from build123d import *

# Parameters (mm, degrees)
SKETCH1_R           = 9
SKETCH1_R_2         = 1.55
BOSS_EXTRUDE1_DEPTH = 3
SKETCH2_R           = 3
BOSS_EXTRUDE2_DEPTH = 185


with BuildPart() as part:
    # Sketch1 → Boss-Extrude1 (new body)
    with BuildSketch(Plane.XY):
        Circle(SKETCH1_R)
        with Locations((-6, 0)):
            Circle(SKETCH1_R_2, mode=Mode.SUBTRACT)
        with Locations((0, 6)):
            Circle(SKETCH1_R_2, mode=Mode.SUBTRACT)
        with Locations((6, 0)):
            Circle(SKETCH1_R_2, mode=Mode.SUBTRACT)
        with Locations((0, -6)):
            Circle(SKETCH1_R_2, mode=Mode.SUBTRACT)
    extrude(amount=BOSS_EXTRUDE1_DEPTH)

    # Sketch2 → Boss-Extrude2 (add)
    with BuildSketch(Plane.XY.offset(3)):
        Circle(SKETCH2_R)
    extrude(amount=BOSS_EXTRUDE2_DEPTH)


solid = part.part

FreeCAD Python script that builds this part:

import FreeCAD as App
import Part
import Sketcher
from FreeCAD import Vector

doc = App.newDocument("Part")
body = doc.addObject("PartDesign::Body", "Body")

# Sketch on XY plane
sketch1 = body.newObject("Sketcher::SketchObject", "Sketch")
sketch1.AttachmentSupport = (doc.getObject("XY_Plane"), [""])
sketch1.MapMode = "FlatFace"
sketch1.addGeometry([
    Part.Circle(Vector(0, 0, 0), Vector(0, 0, 1), 9),  # 0
    Part.Circle(Vector(0, -6, 0), Vector(0, 0, 1), 1.6),  # 1
    Part.Circle(Vector(-6, 0, 0), Vector(0, 0, 1), 1.6),  # 2
    Part.Circle(Vector(6, 0, 0), Vector(0, 0, 1), 1.6),  # 3
    Part.Circle(Vector(0, 6, 0), Vector(0, 0, 1), 1.6),  # 4
], False)
sketch1.addConstraint([
    Sketcher.Constraint("Coincident", 0, 3, -1, 1),
    Sketcher.Constraint("Equal", 1, 2),
    Sketcher.Constraint("Equal", 2, 3),
    Sketcher.Constraint("Equal", 3, 4),
    Sketcher.Constraint("Symmetric", 2, 3, 3, 3, -1, 1),
    Sketcher.Constraint("Symmetric", 1, 3, 4, 3, -1, 1),
    Sketcher.Constraint("PointOnObject", 1, 3, -2),
    Sketcher.Constraint("PointOnObject", 2, 3, -1),
    Sketcher.Constraint("Diameter", 0, 18.0),
    Sketcher.Constraint("Diameter", 1, 3.1),
    Sketcher.Constraint("DistanceY", 1, 3, -1, 1, 6.0),
    Sketcher.Constraint("DistanceX", 2, 3, -1, 1, 6.0),
])
pad1 = body.newObject("PartDesign::Pad", "Pad")
pad1.Profile = sketch1
pad1.Length = 3

# Sketch on XY plane
sketch2 = body.newObject("Sketcher::SketchObject", "Sketch001")
sketch2.AttachmentSupport = (doc.getObject("XY_Plane"), [""])
sketch2.MapMode = "FlatFace"
sketch2.AttachmentOffset = App.Placement(Vector(0, 0, 3), App.Rotation())
sketch2.addGeometry(Part.Circle(Vector(0, 0, 0), Vector(0, 0, 1), 3), False)
sketch2.addConstraint([
    Sketcher.Constraint("Coincident", 0, 3, -1, 1),
    Sketcher.Constraint("Diameter", 0, 6.0),
])
pad2 = body.newObject("PartDesign::Pad", "Pad001")
pad2.Profile = sketch2
pad2.Length = 185

doc.recompute()
